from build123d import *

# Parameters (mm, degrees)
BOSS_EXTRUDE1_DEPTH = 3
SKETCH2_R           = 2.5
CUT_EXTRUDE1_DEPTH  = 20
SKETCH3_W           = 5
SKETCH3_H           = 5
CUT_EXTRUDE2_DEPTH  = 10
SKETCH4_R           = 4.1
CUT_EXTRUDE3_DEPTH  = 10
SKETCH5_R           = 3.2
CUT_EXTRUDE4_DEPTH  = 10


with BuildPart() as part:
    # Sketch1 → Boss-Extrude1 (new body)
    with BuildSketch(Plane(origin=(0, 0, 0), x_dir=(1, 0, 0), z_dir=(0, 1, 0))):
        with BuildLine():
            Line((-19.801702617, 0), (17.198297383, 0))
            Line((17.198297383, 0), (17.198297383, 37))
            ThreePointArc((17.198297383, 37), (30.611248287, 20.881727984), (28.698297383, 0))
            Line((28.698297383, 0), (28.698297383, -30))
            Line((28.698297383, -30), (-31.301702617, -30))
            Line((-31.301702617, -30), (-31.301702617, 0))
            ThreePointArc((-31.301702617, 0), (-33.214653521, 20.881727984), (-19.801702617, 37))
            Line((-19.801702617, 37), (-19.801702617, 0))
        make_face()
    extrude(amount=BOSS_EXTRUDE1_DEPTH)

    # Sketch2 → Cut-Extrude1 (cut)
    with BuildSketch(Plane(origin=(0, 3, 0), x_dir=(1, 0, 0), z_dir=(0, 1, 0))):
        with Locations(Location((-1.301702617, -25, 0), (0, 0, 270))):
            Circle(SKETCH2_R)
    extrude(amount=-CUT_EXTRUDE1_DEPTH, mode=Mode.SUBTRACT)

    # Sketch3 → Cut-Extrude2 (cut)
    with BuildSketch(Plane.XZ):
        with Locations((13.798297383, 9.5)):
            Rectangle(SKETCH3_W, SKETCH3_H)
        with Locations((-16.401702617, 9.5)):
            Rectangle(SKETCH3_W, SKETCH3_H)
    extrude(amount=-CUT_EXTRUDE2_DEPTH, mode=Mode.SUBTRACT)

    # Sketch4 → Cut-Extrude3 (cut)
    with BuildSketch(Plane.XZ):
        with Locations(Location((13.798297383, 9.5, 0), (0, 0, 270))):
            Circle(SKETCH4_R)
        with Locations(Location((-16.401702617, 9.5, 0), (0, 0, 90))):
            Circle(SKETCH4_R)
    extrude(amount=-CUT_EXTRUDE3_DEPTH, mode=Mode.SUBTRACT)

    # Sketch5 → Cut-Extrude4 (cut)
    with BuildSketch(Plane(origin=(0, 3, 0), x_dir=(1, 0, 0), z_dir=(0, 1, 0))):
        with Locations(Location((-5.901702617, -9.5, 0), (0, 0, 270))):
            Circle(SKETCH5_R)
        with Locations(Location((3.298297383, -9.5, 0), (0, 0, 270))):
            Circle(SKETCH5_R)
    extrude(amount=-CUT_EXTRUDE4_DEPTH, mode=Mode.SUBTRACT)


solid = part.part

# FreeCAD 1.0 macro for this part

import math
import FreeCAD as App
import Part
import Sketcher

V = App.Vector


def add_polygon(sketch, points):
    """Adds a closed chain of lines whose ends are joined by coincident constraints."""
    first, n = sketch.GeometryCount, len(points)
    for a, b in zip(points, points[1:] + points[:1]):
        sketch.addGeometry(Part.LineSegment(App.Vector(*a, 0), App.Vector(*b, 0)), False)
    for i in range(n):
        sketch.addConstraint(Sketcher.Constraint("Coincident", first + i, 2, first + (i + 1) % n, 1))

doc = App.newDocument("Part")
params = doc.addObject("Spreadsheet::Sheet", "Params")
for row, (alias, value) in enumerate([
    ("sketch1_width", "37 mm"),
    ("sketch1_width2", "60 mm"),
    ("sketch1_height", "30 mm"),
    ("pad1_length", "3 mm"),
    ("sketch2_diameter", "5 mm"),
    ("pocket1_length", "20 mm"),
    ("sketch3_width", "5 mm"),
    ("pocket2_length", "10 mm"),
    ("sketch4_diameter", "8.2 mm"),
    ("pocket3_length", "10 mm"),
    ("sketch5_diameter", "6.4 mm"),
    ("pocket4_length", "10 mm"),
], start=1):
    params.set(f"A{row}", alias)
    params.set(f"B{row}", "=" + value)
    params.setAlias(f"B{row}", alias)

body = doc.addObject("PartDesign::Body", "Body")

sketch1 = doc.addObject("Sketcher::SketchObject", "Sketch")
body.addObject(sketch1)
sketch1.AttachmentSupport = (doc.XZ_Plane, [""])
sketch1.MapMode = "FlatFace"
sketch1.addGeometry([
    Part.LineSegment(V(17, 0, 0), V(-20, 0, 0)),
    Part.LineSegment(V(-20, 0, 0), V(-20, -37, 0)),
    Part.ArcOfCircle(Part.Circle(V(-7, -13, 0), V(0, 0, 1), 27), math.radians(152), math.radians(242)),
    Part.LineSegment(V(-31, 0, 0), V(-31, 30, 0)),
    Part.LineSegment(V(-31, 30, 0), V(29, 30, 0)),
    Part.LineSegment(V(29, 30, 0), V(29, 0, 0)),
    Part.ArcOfCircle(Part.Circle(V(4, -13, 0), V(0, 0, 1), 27), math.radians(-62), math.radians(28)),
    Part.LineSegment(V(17, -37, 0), V(17, 0, 0)),
], False)
sketch1.addConstraint([
    Sketcher.Constraint("Coincident", 0, 2, 1, 1),
    Sketcher.Constraint("Coincident", 1, 2, 2, 2),
    Sketcher.Constraint("Coincident", 2, 1, 3, 1),
    Sketcher.Constraint("Coincident", 3, 2, 4, 1),
    Sketcher.Constraint("Coincident", 4, 2, 5, 1),
    Sketcher.Constraint("Coincident", 5, 2, 6, 2),
    Sketcher.Constraint("Coincident", 6, 1, 7, 1),
    Sketcher.Constraint("Coincident", 7, 2, 0, 1),
    Sketcher.Constraint("Horizontal", 0),
    Sketcher.Constraint("Vertical", 1),
    Sketcher.Constraint("Vertical", 3),
    Sketcher.Constraint("Horizontal", 4),
    Sketcher.Constraint("Vertical", 5),
    Sketcher.Constraint("Vertical", 7),
    Sketcher.Constraint("Equal", 2, 6),
    Sketcher.Constraint("PointOnObject", 0, 2, -1),
    Sketcher.Constraint("PointOnObject", 2, 1, -1),
    Sketcher.Constraint("PointOnObject", 5, 2, -1),
    Sketcher.Constraint("Horizontal", 2, 3, 6, 3),
    Sketcher.Constraint("Horizontal", 1, 2, 6, 1),
    Sketcher.Constraint("Equal", 0, 1),
    Sketcher.Constraint("DistanceX", 0, 2, 0, 1, 37.0),
    Sketcher.Constraint("DistanceX", 4, 1, 4, 2, 60.0),
    Sketcher.Constraint("DistanceY", 3, 1, 3, 2, 30.0),
    Sketcher.Constraint("DistanceX", 2, 3, 6, 3, 11.5),
    Sketcher.Constraint("DistanceX", 2, 3, -1, 1, 7.051703),
])
sketch1.setExpression("Constraints[21]", "Params.sketch1_width")
sketch1.setExpression("Constraints[22]", "Params.sketch1_width2")
sketch1.setExpression("Constraints[23]", "Params.sketch1_height")
pad1 = doc.addObject("PartDesign::Pad", "Pad")
body.addObject(pad1)
pad1.Profile = sketch1
pad1.setExpression("Length", "Params.pad1_length")
pad1.Reversed = True

sketch2 = doc.addObject("Sketcher::SketchObject", "Sketch001")
body.addObject(sketch2)
sketch2.AttachmentSupport = (doc.XZ_Plane, [""])
sketch2.MapMode = "FlatFace"
sketch2.AttachmentOffset = App.Placement(V(0, 0, -3), App.Rotation())
sketch2.addGeometry(Part.Circle(V(-1.3, 25, 0), V(0, 0, 1), 2.5), False)
sketch2.addConstraint([
    Sketcher.Constraint("Diameter", 0, 5.0),
    Sketcher.Constraint("DistanceY", -1, 1, 0, 3, 25.0),
    Sketcher.Constraint("DistanceX", 0, 3, -1, 1, 1.301703),
])
sketch2.setExpression("Constraints[0]", "Params.sketch2_diameter")
pocket1 = doc.addObject("PartDesign::Pocket", "Pocket")
body.addObject(pocket1)
pocket1.Profile = sketch2
pocket1.setExpression("Length", "Params.pocket1_length")
pocket1.Reversed = True

sketch3 = doc.addObject("Sketcher::SketchObject", "Sketch002")
body.addObject(sketch3)
sketch3.AttachmentSupport = (doc.XZ_Plane, [""])
sketch3.MapMode = "FlatFace"
add_polygon(sketch3, [(11, 12), (11, 7), (16, 7), (16, 12)])
add_polygon(sketch3, [(-19, 12), (-19, 7), (-14, 7), (-14, 12)])
sketch3.addConstraint([
    Sketcher.Constraint("Vertical", 0),
    Sketcher.Constraint("Horizontal", 1),
    Sketcher.Constraint("Vertical", 2),
    Sketcher.Constraint("Horizontal", 3),
    Sketcher.Constraint("Vertical", 4),
    Sketcher.Constraint("Horizontal", 5),
    Sketcher.Constraint("Vertical", 6),
    Sketcher.Constraint("Horizontal", 7),
    Sketcher.Constraint("Horizontal", 1, 2, 4, 2),
    Sketcher.Constraint("Horizontal", 3, 2, 6, 2),
    Sketcher.Constraint("Equal", 3, 5),
    Sketcher.Constraint("Equal", 7, 0),
    Sketcher.Constraint("DistanceX", 1, 1, 1, 2, 5.0),
    Sketcher.Constraint("DistanceY", -1, 1, 0, 2, 7.0),
    Sketcher.Constraint("DistanceX", 4, 2, 0, 2, 30.2),
    Sketcher.Constraint("DistanceX", -1, 1, 0, 2, 11.298297),
])
sketch3.setExpression("Constraints[20]", "Params.sketch3_width")
pocket2 = doc.addObject("PartDesign::Pocket", "Pocket001")
body.addObject(pocket2)
pocket2.Profile = sketch3
pocket2.setExpression("Length", "Params.pocket2_length")

sketch4 = doc.addObject("Sketcher::SketchObject", "Sketch003")
body.addObject(sketch4)
sketch4.AttachmentSupport = (doc.XZ_Plane, [""])
sketch4.MapMode = "FlatFace"
sketch4.addGeometry([
    Part.Circle(V(13.8, 9.5, 0), V(0, 0, 1), 4.1),
    Part.Circle(V(-16.4, 9.5, 0), V(0, 0, 1), 4.1),
], False)
sketch4.addConstraint([
    Sketcher.Constraint("Equal", 0, 1),
    Sketcher.Constraint("Horizontal", 0, 3, 1, 3),
    Sketcher.Constraint("Diameter", 0, 8.2),
    Sketcher.Constraint("DistanceY", -1, 1, 0, 3, 9.5),
    Sketcher.Constraint("DistanceX", 1, 3, 0, 3, 30.2),
    Sketcher.Constraint("DistanceX", -1, 1, 0, 3, 13.798297),
])
sketch4.setExpression("Constraints[2]", "Params.sketch4_diameter")
pocket3 = doc.addObject("PartDesign::Pocket", "Pocket002")
body.addObject(pocket3)
pocket3.Profile = sketch4
pocket3.setExpression("Length", "Params.pocket3_length")

sketch5 = doc.addObject("Sketcher::SketchObject", "Sketch004")
body.addObject(sketch5)
sketch5.AttachmentSupport = (doc.XZ_Plane, [""])
sketch5.MapMode = "FlatFace"
sketch5.AttachmentOffset = App.Placement(V(0, 0, -3), App.Rotation())
sketch5.addGeometry([
    Part.Circle(V(-5.9, 9.5, 0), V(0, 0, 1), 3.2),
    Part.Circle(V(3.3, 9.5, 0), V(0, 0, 1), 3.2),
], False)
sketch5.addConstraint([
    Sketcher.Constraint("Equal", 0, 1),
    Sketcher.Constraint("Horizontal", 0, 3, 1, 3),
    Sketcher.Constraint("Diameter", 0, 6.4),
    Sketcher.Constraint("DistanceY", -1, 1, 0, 3, 9.5),
    Sketcher.Constraint("DistanceX", 0, 3, 1, 3, 9.2),
    Sketcher.Constraint("DistanceX", 0, 3, -1, 1, 5.901703),
])
sketch5.setExpression("Constraints[2]", "Params.sketch5_diameter")
pocket4 = doc.addObject("PartDesign::Pocket", "Pocket003")
body.addObject(pocket4)
pocket4.Profile = sketch5
pocket4.setExpression("Length", "Params.pocket4_length")
pocket4.Reversed = True

doc.recompute()
